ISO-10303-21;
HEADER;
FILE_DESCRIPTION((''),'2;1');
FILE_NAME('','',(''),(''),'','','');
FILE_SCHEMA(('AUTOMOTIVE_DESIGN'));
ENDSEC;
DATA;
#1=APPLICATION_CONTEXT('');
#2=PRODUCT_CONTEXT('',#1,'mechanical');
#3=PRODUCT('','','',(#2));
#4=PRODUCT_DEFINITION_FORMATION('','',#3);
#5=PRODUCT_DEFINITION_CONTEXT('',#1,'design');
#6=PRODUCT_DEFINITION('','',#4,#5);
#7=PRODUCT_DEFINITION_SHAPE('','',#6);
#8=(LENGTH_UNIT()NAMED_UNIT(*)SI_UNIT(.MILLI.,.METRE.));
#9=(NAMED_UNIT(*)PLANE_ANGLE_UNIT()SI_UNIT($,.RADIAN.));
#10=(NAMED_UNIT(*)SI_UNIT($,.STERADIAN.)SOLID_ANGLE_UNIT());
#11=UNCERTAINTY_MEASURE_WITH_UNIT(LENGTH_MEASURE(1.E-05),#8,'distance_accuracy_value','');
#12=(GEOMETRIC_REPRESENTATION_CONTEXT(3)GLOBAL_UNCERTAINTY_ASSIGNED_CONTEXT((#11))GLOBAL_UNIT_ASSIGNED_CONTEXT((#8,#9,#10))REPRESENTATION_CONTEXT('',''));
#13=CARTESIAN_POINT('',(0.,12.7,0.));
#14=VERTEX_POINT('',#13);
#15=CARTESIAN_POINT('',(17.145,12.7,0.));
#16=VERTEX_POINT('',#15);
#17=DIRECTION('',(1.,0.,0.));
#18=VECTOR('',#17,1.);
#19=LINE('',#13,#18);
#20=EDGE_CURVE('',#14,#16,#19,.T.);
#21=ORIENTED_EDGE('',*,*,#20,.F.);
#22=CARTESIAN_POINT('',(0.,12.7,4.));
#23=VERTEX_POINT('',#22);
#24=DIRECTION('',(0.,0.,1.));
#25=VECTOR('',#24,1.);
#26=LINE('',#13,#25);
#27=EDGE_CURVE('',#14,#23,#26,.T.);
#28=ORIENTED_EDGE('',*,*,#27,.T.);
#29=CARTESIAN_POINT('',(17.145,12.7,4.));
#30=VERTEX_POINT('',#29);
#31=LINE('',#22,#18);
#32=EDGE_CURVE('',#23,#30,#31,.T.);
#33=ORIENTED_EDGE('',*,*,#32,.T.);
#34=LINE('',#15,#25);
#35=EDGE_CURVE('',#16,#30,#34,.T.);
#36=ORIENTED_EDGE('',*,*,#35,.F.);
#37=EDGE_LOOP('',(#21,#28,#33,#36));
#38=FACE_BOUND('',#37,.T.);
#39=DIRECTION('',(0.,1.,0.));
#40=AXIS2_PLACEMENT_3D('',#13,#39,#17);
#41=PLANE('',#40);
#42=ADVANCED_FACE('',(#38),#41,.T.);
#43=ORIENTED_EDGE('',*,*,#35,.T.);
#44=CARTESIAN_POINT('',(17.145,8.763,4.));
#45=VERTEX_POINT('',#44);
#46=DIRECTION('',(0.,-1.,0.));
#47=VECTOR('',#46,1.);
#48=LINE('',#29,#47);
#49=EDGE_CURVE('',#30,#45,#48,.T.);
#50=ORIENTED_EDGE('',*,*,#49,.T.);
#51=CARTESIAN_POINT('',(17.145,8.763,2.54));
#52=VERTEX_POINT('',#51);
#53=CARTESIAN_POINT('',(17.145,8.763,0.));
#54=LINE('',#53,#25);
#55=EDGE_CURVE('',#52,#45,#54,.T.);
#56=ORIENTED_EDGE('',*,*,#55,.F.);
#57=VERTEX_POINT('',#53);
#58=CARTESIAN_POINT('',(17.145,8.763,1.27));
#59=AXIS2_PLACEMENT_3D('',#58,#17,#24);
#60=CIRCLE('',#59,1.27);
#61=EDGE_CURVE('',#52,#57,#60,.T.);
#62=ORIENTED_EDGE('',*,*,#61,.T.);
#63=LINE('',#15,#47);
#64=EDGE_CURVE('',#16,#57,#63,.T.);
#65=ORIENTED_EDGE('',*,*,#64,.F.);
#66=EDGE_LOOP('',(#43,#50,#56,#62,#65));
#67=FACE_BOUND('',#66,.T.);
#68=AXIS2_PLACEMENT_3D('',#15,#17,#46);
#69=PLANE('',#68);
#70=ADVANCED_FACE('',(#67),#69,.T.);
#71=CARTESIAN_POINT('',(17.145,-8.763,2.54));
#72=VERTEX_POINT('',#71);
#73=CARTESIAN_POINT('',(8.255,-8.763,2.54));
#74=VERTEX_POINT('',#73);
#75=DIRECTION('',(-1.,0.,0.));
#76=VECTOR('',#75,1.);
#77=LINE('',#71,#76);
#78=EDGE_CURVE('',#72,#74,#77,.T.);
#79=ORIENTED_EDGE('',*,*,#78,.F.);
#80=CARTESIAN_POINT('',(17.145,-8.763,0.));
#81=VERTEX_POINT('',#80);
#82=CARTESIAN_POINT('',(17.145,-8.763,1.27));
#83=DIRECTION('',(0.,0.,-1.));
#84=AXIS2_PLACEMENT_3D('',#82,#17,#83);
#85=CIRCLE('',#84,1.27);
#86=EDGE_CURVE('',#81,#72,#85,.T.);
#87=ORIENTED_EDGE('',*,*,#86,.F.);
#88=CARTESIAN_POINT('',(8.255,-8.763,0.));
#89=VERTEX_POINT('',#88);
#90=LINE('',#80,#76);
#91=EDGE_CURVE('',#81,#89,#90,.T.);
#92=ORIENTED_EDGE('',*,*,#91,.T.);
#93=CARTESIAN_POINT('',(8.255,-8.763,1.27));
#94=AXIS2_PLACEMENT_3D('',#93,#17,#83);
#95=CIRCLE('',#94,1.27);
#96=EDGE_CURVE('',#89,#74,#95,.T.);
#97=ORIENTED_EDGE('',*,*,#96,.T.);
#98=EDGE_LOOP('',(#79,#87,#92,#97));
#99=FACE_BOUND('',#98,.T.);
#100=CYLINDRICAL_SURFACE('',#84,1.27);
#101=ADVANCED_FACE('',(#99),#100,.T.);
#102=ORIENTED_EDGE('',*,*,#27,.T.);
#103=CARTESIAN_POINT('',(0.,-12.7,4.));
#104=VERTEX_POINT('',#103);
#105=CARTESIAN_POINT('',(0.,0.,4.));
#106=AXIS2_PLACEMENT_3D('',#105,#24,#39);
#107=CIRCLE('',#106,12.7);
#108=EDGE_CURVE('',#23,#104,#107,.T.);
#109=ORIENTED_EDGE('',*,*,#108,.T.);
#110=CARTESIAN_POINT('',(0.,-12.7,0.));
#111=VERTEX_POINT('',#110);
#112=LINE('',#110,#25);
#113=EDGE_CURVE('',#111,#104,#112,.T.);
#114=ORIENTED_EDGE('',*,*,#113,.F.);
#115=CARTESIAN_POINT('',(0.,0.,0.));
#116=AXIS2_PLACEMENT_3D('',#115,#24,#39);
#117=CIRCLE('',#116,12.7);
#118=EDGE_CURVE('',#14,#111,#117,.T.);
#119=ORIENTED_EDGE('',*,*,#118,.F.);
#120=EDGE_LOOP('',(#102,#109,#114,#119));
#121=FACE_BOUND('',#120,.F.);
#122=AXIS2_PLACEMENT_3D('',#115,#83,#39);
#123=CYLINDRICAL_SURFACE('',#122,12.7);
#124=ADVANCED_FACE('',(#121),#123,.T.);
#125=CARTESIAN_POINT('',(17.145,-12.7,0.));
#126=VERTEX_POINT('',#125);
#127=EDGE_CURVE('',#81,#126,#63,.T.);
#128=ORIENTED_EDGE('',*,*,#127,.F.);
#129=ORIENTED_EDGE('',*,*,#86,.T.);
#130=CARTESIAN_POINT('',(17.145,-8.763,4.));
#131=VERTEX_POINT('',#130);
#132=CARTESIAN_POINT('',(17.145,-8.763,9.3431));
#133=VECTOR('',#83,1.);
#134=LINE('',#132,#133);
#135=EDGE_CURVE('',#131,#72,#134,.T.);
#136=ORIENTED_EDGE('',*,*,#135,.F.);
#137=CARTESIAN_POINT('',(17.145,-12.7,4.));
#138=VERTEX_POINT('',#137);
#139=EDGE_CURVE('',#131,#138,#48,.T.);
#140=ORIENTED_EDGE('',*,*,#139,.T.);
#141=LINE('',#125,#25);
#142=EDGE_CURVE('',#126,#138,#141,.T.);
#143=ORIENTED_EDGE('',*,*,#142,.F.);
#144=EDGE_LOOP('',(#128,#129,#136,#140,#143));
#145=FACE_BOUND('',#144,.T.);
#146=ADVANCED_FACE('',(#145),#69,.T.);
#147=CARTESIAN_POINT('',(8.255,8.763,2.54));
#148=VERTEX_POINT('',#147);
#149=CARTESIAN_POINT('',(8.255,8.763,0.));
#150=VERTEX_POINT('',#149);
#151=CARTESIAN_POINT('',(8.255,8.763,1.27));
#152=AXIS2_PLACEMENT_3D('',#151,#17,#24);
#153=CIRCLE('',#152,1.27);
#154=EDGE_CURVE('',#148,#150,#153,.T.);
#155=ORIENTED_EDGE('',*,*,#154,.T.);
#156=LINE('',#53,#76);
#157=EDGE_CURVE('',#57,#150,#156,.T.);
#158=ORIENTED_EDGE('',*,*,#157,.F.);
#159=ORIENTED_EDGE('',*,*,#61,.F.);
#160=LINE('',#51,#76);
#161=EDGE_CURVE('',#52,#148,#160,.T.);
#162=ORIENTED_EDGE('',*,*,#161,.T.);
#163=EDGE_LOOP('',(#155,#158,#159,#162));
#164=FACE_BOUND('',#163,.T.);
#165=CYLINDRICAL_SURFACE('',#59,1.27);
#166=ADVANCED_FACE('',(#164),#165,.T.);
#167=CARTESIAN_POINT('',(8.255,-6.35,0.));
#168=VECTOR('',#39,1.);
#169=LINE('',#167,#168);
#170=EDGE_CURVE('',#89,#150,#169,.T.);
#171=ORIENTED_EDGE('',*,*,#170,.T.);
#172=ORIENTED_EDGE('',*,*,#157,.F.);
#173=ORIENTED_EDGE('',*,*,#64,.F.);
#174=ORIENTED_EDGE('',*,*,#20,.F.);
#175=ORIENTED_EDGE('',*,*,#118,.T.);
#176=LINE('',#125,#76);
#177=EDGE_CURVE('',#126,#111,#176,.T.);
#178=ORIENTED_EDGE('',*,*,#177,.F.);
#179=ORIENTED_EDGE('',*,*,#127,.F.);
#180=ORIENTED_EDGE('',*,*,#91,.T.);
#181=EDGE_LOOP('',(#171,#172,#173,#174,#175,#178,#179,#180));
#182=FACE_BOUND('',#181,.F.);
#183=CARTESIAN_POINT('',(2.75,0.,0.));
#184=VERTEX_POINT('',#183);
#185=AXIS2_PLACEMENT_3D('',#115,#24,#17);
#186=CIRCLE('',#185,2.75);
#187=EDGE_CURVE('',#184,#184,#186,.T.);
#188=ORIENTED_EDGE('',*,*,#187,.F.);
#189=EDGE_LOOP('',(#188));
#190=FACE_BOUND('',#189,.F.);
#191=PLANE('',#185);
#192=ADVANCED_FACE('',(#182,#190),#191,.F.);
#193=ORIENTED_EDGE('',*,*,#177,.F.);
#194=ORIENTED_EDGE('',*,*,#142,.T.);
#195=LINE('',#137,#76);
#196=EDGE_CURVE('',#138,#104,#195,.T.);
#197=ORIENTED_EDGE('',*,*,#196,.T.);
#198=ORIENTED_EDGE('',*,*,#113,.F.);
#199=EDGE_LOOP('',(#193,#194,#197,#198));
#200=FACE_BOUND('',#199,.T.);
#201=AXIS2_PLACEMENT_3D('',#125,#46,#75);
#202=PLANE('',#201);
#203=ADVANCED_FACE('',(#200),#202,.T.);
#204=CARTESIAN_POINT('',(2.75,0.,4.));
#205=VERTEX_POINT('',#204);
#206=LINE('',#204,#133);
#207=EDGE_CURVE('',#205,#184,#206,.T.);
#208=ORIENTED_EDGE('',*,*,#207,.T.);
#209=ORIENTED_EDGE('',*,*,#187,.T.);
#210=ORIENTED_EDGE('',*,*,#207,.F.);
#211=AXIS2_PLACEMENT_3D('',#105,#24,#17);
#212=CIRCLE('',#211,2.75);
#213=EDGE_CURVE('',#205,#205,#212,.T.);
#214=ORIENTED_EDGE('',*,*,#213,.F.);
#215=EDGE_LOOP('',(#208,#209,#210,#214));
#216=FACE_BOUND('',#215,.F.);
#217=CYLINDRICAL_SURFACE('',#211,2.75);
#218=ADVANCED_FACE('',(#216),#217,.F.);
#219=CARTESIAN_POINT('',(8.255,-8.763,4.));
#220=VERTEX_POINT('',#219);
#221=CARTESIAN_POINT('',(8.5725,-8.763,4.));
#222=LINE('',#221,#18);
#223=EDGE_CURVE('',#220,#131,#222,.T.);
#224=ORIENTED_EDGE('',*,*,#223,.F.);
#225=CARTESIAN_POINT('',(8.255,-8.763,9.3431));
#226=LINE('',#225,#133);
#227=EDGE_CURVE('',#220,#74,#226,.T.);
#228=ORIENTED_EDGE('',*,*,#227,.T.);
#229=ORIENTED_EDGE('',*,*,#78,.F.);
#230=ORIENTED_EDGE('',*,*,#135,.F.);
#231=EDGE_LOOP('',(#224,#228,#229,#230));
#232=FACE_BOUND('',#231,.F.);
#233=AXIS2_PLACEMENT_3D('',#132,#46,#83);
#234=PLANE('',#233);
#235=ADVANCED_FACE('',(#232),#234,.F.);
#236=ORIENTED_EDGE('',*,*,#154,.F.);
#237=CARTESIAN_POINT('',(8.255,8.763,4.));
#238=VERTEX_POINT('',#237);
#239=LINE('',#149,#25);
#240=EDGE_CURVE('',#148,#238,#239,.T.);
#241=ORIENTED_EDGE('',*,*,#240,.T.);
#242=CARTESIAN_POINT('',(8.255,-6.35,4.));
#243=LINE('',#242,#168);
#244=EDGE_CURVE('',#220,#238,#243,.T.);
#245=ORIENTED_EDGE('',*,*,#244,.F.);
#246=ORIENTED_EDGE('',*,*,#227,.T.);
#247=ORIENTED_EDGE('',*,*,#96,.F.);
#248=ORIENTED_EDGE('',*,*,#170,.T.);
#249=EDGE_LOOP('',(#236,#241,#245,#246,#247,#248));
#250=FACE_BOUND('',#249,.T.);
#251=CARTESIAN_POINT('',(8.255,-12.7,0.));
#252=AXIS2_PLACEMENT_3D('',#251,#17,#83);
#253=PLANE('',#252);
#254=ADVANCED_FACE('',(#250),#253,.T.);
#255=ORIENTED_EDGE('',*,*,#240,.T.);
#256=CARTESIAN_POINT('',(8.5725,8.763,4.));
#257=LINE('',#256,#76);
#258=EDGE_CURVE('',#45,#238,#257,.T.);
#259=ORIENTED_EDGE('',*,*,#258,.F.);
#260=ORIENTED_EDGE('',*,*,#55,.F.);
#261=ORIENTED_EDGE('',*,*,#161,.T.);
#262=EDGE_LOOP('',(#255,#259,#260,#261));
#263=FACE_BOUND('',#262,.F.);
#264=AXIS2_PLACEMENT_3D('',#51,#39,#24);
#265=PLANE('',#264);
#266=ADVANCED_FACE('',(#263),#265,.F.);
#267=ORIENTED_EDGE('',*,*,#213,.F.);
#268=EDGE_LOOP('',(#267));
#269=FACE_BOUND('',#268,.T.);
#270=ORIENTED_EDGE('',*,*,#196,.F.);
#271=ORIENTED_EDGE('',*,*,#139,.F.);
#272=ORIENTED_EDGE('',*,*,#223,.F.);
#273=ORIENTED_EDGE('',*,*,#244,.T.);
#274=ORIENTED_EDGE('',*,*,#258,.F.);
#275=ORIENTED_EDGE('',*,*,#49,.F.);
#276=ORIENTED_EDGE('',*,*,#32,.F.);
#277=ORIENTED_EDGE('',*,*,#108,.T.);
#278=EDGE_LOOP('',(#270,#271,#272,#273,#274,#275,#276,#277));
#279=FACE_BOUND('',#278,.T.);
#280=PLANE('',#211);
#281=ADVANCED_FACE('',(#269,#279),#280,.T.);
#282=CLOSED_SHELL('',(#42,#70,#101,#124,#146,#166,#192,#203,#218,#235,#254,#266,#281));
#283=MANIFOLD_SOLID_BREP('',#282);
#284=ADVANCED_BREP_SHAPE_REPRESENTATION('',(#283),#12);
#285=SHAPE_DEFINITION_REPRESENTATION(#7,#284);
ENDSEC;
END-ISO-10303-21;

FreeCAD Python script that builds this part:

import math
import FreeCAD as App
import Part
import Sketcher
Q = App.Units.Quantity

doc = App.newDocument("Part")
body = doc.addObject("PartDesign::Body", "Body")

# Sketch on XY plane
sketch1 = body.newObject("Sketcher::SketchObject", "Sketch")
sketch1.AttachmentSupport = (doc.getObject("XY_Plane"), [""])
sketch1.MapMode = "FlatFace"
sketch1.addGeometry([
    Part.ArcOfCircle(Part.Circle(App.Vector(0, 0, 0), App.Vector(0, 0, 1), 12.7), math.radians(90), math.radians(270)),
    Part.LineSegment(App.Vector(0, -12.7, 0), App.Vector(17.145, -12.7, 0)),
    Part.LineSegment(App.Vector(17.145, -12.7, 0), App.Vector(17.145, 12.7, 0)),
    Part.LineSegment(App.Vector(17.145, 12.7, 0), App.Vector(0, 12.7, 0)),
], False)
sketch1.addConstraint([
    Sketcher.Constraint("Tangent", 0, 2, 1, 1),
    Sketcher.Constraint("Coincident", 1, 2, 2, 1),
    Sketcher.Constraint("Coincident", 2, 2, 3, 1),
    Sketcher.Constraint("Tangent", 3, 2, 0, 1),
    Sketcher.Constraint("Horizontal", 1),
    Sketcher.Constraint("Vertical", 2),
    Sketcher.Constraint("Horizontal", 3),
    Sketcher.Constraint("Coincident", 0, 3, -1, 1),
    Sketcher.Constraint("Radius", 0, Q("0.5 in")),
    Sketcher.Constraint("DistanceX", 1, 1, 1, 2, Q("0.675 in")),
])
pad1 = body.newObject("PartDesign::Pad", "Pad")
pad1.Profile = sketch1
pad1.Length = 4

# Sketch on XY plane
sketch2 = body.newObject("Sketcher::SketchObject", "Sketch001")
sketch2.AttachmentSupport = (doc.getObject("XY_Plane"), [""])
sketch2.MapMode = "FlatFace"
sketch2.AttachmentOffset = App.Placement(App.Vector(0, 0, 4), App.Rotation())
sketch2.addGeometry(Part.Circle(App.Vector(0, 0, 0), App.Vector(0, 0, 1), 2.75), False)
sketch2.addConstraint([
    Sketcher.Constraint("Coincident", 0, 3, -1, 1),
    Sketcher.Constraint("Diameter", 0, Q("5.5 mm")),
])
pocket1 = body.newObject("PartDesign::Pocket", "Pocket")
pocket1.Profile = sketch2
pocket1.Type = "ThroughAll"

# Sketch on YZ plane
sketch3 = body.newObject("Sketcher::SketchObject", "Sketch002")
sketch3.AttachmentSupport = (doc.getObject("YZ_Plane"), [""])
sketch3.MapMode = "FlatFace"
sketch3.AttachmentOffset = App.Placement(App.Vector(0, 0, 0.675 * 25.4), App.Rotation())
sketch3.addGeometry([
    Part.LineSegment(App.Vector(8.763, 9.3431, 0), App.Vector(-8.763, 9.3431, 0)),  # 0
    Part.LineSegment(App.Vector(-8.763, 9.3431, 0), App.Vector(-8.763, 2.54, 0)),  # 1
    Part.ArcOfCircle(Part.Circle(App.Vector(-8.763, 1.27, 0), App.Vector(0, 0, 1), 1.27), math.radians(-90), math.radians(90)),  # 2
    Part.LineSegment(App.Vector(-8.763, 0, 0), App.Vector(-8.763, -4.3638, 0)),  # 3
    Part.LineSegment(App.Vector(-8.763, -4.3638, 0), App.Vector(8.763, -4.3638, 0)),  # 4
    Part.LineSegment(App.Vector(8.763, -4.3638, 0), App.Vector(8.763, 0, 0)),  # 5
    Part.ArcOfCircle(Part.Circle(App.Vector(8.763, 1.27, 0), App.Vector(0, 0, 1), 1.27), math.radians(90), math.radians(270)),  # 6
    Part.LineSegment(App.Vector(8.763, 2.54, 0), App.Vector(8.763, 9.3431, 0)),  # 7
], False)
sketch3.addConstraint([
    Sketcher.Constraint("Coincident", 0, 2, 1, 1),
    Sketcher.Constraint("Coincident", 1, 2, 2, 2),
    Sketcher.Constraint("Coincident", 2, 1, 3, 1),
    Sketcher.Constraint("Coincident", 3, 2, 4, 1),
    Sketcher.Constraint("Coincident", 4, 2, 5, 1),
    Sketcher.Constraint("Coincident", 5, 2, 6, 2),
    Sketcher.Constraint("Coincident", 6, 1, 7, 1),
    Sketcher.Constraint("Coincident", 7, 2, 0, 1),
    Sketcher.Constraint("Horizontal", 0),
    Sketcher.Constraint("Vertical", 1),
    Sketcher.Constraint("Vertical", 3),
    Sketcher.Constraint("Horizontal", 4),
    Sketcher.Constraint("Vertical", 5),
    Sketcher.Constraint("Vertical", 7),
    Sketcher.Constraint("Equal", 2, 6),
    Sketcher.Constraint("Symmetric", 2, 1, 5, 2, -1, 1),
    Sketcher.Constraint("Symmetric", 2, 3, 6, 3, -2),
    Sketcher.Constraint("Vertical", 2, 3, 0, 2),
    Sketcher.Constraint("Vertical", 1, 2, 2, 1),
    Sketcher.Constraint("Vertical", 5, 2, 6, 1),
    Sketcher.Constraint("Radius", 2, Q("0.05 in")),
    Sketcher.Constraint("DistanceX", 0, 2, 0, 1, Q("0.69 in")),
    Sketcher.Constraint("DistanceY", 3, 2, 3, 1, Q("0.1718 in")),
    Sketcher.Constraint("DistanceY", 1, 2, 1, 1, Q("6.803 mm")),
])
pocket2 = body.newObject("PartDesign::Pocket", "Pocket001")
pocket2.Profile = sketch3
pocket2.Length = Q("0.35 in")

doc.recompute()
